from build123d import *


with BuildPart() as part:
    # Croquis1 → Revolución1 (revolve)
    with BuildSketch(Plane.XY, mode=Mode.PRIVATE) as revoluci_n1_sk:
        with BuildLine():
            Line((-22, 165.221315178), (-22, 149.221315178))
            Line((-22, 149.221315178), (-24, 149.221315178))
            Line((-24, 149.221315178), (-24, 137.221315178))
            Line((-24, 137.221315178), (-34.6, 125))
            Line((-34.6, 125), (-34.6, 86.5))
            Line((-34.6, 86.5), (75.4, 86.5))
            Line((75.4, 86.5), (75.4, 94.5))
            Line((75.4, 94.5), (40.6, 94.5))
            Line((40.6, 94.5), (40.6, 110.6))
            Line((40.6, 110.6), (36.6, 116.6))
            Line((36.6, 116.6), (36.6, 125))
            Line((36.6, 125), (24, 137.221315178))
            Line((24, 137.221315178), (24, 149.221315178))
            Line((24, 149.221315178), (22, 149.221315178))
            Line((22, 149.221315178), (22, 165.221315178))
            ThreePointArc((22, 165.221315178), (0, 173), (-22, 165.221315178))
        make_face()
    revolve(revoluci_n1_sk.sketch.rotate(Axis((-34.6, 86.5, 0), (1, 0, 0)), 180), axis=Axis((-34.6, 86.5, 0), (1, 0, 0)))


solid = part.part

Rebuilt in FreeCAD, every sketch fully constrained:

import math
import FreeCAD as App
import Part
import Sketcher
Q = App.Units.Quantity

doc = App.newDocument("Part")
body = doc.addObject("PartDesign::Body", "Body")

sketch1 = body.newObject("Sketcher::SketchObject", "Sketch")
sketch1.AttachmentSupport = (doc.getObject("XY_Plane"), [""])
sketch1.MapMode = "FlatFace"
sketch1.addGeometry([
    Part.LineSegment(App.Vector(-22, 165.2, 0), App.Vector(-22, 149.2, 0)),
    Part.LineSegment(App.Vector(-22, 149.2, 0), App.Vector(-24, 149.2, 0)),
    Part.LineSegment(App.Vector(-24, 149.2, 0), App.Vector(-24, 137.2, 0)),
    Part.LineSegment(App.Vector(-24, 137.2, 0), App.Vector(-34.6, 125, 0)),
    Part.LineSegment(App.Vector(-34.6, 125, 0), App.Vector(-34.6, 86.5, 0)),
    Part.LineSegment(App.Vector(-34.6, 86.5, 0), App.Vector(75.4, 86.5, 0)),
    Part.LineSegment(App.Vector(75.4, 86.5, 0), App.Vector(75.4, 94.5, 0)),
    Part.LineSegment(App.Vector(75.4, 94.5, 0), App.Vector(40.6, 94.5, 0)),
    Part.LineSegment(App.Vector(40.6, 94.5, 0), App.Vector(40.6, 110.6, 0)),
    Part.LineSegment(App.Vector(40.6, 110.6, 0), App.Vector(36.6, 116.6, 0)),
    Part.LineSegment(App.Vector(36.6, 116.6, 0), App.Vector(36.6, 125, 0)),
    Part.LineSegment(App.Vector(36.6, 125, 0), App.Vector(24, 137.2, 0)),
    Part.LineSegment(App.Vector(24, 137.2, 0), App.Vector(24, 149.2, 0)),
    Part.LineSegment(App.Vector(24, 149.2, 0), App.Vector(22, 149.2, 0)),
    Part.LineSegment(App.Vector(22, 149.2, 0), App.Vector(22, 165.2, 0)),
    Part.ArcOfCircle(Part.Circle(App.Vector(0, 138, 0), App.Vector(0, 0, 1), 35), math.radians(51), math.radians(129)),
], False)
sketch1.addGeometry(Part.LineSegment(App.Vector(-34.6, 86.5, 0), App.Vector(75.4, 86.5, 0)), True)
sketch1.addConstraint([
    Sketcher.Constraint("Coincident", 0, 2, 1, 1),
    Sketcher.Constraint("Coincident", 1, 2, 2, 1),
    Sketcher.Constraint("Coincident", 2, 2, 3, 1),
    Sketcher.Constraint("Coincident", 3, 2, 4, 1),
    Sketcher.Constraint("Coincident", 4, 2, 5, 1),
    Sketcher.Constraint("Coincident", 5, 2, 6, 1),
    Sketcher.Constraint("Coincident", 6, 2, 7, 1),
    Sketcher.Constraint("Coincident", 7, 2, 8, 1),
    Sketcher.Constraint("Coincident", 8, 2, 9, 1),
    Sketcher.Constraint("Coincident", 9, 2, 10, 1),
    Sketcher.Constraint("Coincident", 10, 2, 11, 1),
    Sketcher.Constraint("Coincident", 11, 2, 12, 1),
    Sketcher.Constraint("Coincident", 12, 2, 13, 1),
    Sketcher.Constraint("Coincident", 13, 2, 14, 1),
    Sketcher.Constraint("Coincident", 14, 2, 15, 1),
    Sketcher.Constraint("Coincident", 15, 2, 0, 1),
    Sketcher.Constraint("Vertical", 0),
    Sketcher.Constraint("Horizontal", 1),
    Sketcher.Constraint("Vertical", 2),
    Sketcher.Constraint("Vertical", 4),
    Sketcher.Constraint("Horizontal", 5),
    Sketcher.Constraint("Vertical", 6),
    Sketcher.Constraint("Horizontal", 7),
    Sketcher.Constraint("Vertical", 8),
    Sketcher.Constraint("Vertical", 10),
    Sketcher.Constraint("Vertical", 12),
    Sketcher.Constraint("Horizontal", 13),
    Sketcher.Constraint("Vertical", 14),
    Sketcher.Constraint("Horizontal", 16),
    Sketcher.Constraint("Coincident", 16, 1, 4, 2),
    Sketcher.Constraint("Symmetric", 2, 2, 11, 2, -2),
    Sketcher.Constraint("Symmetric", 0, 2, 13, 2, -2),
    Sketcher.Constraint("PointOnObject", 15, 3, -2),
    Sketcher.Constraint("Horizontal", 3, 2, 10, 2),
    Sketcher.Constraint("Vertical", 6, 2, 16, 2),
    Sketcher.Constraint("Radius", 15, Q("35 mm")),
    Sketcher.Constraint("DistanceX", 1, 2, 1, 1, Q("2 mm")),
    Sketcher.Constraint("DistanceX", 5, 1, 5, 2, Q("110 mm")),
    Sketcher.Constraint("DistanceY", 0, 2, 0, 1, Q("16 mm")),
    Sketcher.Constraint("DistanceY", 2, 2, 2, 1, Q("12 mm")),
    Sketcher.Constraint("DistanceY", 6, 1, 6, 2, Q("8 mm")),
    Sketcher.Constraint("DistanceX", 7, 2, 7, 1, Q("34.8 mm")),
    Sketcher.Constraint("DistanceY", 4, 2, 4, 1, Q("38.5 mm")),
    Sketcher.Constraint("DistanceY", 8, 1, 8, 2, Q("16.1 mm")),
    Sketcher.Constraint("DistanceY", 10, 1, 10, 2, Q("8.4 mm")),
    Sketcher.Constraint("DistanceY", -1, 1, 15, 3, Q("138 mm")),
    Sketcher.Constraint("DistanceX", 0, 2, -1, 1, Q("22 mm")),
    Sketcher.Constraint("DistanceY", -1, 1, 3, 2, Q("125 mm")),
    Sketcher.Constraint("DistanceX", 9, 2, 8, 2, Q("4 mm")),
    Sketcher.Constraint("DistanceX", 3, 2, -1, 1, Q("34.6 mm")),
])
revolution = body.newObject("PartDesign::Revolution", "Revolution")
revolution.Profile = sketch1
revolution.ReferenceAxis = (sketch1, ["Axis0"])
revolution.Angle = 360

doc.recompute()
